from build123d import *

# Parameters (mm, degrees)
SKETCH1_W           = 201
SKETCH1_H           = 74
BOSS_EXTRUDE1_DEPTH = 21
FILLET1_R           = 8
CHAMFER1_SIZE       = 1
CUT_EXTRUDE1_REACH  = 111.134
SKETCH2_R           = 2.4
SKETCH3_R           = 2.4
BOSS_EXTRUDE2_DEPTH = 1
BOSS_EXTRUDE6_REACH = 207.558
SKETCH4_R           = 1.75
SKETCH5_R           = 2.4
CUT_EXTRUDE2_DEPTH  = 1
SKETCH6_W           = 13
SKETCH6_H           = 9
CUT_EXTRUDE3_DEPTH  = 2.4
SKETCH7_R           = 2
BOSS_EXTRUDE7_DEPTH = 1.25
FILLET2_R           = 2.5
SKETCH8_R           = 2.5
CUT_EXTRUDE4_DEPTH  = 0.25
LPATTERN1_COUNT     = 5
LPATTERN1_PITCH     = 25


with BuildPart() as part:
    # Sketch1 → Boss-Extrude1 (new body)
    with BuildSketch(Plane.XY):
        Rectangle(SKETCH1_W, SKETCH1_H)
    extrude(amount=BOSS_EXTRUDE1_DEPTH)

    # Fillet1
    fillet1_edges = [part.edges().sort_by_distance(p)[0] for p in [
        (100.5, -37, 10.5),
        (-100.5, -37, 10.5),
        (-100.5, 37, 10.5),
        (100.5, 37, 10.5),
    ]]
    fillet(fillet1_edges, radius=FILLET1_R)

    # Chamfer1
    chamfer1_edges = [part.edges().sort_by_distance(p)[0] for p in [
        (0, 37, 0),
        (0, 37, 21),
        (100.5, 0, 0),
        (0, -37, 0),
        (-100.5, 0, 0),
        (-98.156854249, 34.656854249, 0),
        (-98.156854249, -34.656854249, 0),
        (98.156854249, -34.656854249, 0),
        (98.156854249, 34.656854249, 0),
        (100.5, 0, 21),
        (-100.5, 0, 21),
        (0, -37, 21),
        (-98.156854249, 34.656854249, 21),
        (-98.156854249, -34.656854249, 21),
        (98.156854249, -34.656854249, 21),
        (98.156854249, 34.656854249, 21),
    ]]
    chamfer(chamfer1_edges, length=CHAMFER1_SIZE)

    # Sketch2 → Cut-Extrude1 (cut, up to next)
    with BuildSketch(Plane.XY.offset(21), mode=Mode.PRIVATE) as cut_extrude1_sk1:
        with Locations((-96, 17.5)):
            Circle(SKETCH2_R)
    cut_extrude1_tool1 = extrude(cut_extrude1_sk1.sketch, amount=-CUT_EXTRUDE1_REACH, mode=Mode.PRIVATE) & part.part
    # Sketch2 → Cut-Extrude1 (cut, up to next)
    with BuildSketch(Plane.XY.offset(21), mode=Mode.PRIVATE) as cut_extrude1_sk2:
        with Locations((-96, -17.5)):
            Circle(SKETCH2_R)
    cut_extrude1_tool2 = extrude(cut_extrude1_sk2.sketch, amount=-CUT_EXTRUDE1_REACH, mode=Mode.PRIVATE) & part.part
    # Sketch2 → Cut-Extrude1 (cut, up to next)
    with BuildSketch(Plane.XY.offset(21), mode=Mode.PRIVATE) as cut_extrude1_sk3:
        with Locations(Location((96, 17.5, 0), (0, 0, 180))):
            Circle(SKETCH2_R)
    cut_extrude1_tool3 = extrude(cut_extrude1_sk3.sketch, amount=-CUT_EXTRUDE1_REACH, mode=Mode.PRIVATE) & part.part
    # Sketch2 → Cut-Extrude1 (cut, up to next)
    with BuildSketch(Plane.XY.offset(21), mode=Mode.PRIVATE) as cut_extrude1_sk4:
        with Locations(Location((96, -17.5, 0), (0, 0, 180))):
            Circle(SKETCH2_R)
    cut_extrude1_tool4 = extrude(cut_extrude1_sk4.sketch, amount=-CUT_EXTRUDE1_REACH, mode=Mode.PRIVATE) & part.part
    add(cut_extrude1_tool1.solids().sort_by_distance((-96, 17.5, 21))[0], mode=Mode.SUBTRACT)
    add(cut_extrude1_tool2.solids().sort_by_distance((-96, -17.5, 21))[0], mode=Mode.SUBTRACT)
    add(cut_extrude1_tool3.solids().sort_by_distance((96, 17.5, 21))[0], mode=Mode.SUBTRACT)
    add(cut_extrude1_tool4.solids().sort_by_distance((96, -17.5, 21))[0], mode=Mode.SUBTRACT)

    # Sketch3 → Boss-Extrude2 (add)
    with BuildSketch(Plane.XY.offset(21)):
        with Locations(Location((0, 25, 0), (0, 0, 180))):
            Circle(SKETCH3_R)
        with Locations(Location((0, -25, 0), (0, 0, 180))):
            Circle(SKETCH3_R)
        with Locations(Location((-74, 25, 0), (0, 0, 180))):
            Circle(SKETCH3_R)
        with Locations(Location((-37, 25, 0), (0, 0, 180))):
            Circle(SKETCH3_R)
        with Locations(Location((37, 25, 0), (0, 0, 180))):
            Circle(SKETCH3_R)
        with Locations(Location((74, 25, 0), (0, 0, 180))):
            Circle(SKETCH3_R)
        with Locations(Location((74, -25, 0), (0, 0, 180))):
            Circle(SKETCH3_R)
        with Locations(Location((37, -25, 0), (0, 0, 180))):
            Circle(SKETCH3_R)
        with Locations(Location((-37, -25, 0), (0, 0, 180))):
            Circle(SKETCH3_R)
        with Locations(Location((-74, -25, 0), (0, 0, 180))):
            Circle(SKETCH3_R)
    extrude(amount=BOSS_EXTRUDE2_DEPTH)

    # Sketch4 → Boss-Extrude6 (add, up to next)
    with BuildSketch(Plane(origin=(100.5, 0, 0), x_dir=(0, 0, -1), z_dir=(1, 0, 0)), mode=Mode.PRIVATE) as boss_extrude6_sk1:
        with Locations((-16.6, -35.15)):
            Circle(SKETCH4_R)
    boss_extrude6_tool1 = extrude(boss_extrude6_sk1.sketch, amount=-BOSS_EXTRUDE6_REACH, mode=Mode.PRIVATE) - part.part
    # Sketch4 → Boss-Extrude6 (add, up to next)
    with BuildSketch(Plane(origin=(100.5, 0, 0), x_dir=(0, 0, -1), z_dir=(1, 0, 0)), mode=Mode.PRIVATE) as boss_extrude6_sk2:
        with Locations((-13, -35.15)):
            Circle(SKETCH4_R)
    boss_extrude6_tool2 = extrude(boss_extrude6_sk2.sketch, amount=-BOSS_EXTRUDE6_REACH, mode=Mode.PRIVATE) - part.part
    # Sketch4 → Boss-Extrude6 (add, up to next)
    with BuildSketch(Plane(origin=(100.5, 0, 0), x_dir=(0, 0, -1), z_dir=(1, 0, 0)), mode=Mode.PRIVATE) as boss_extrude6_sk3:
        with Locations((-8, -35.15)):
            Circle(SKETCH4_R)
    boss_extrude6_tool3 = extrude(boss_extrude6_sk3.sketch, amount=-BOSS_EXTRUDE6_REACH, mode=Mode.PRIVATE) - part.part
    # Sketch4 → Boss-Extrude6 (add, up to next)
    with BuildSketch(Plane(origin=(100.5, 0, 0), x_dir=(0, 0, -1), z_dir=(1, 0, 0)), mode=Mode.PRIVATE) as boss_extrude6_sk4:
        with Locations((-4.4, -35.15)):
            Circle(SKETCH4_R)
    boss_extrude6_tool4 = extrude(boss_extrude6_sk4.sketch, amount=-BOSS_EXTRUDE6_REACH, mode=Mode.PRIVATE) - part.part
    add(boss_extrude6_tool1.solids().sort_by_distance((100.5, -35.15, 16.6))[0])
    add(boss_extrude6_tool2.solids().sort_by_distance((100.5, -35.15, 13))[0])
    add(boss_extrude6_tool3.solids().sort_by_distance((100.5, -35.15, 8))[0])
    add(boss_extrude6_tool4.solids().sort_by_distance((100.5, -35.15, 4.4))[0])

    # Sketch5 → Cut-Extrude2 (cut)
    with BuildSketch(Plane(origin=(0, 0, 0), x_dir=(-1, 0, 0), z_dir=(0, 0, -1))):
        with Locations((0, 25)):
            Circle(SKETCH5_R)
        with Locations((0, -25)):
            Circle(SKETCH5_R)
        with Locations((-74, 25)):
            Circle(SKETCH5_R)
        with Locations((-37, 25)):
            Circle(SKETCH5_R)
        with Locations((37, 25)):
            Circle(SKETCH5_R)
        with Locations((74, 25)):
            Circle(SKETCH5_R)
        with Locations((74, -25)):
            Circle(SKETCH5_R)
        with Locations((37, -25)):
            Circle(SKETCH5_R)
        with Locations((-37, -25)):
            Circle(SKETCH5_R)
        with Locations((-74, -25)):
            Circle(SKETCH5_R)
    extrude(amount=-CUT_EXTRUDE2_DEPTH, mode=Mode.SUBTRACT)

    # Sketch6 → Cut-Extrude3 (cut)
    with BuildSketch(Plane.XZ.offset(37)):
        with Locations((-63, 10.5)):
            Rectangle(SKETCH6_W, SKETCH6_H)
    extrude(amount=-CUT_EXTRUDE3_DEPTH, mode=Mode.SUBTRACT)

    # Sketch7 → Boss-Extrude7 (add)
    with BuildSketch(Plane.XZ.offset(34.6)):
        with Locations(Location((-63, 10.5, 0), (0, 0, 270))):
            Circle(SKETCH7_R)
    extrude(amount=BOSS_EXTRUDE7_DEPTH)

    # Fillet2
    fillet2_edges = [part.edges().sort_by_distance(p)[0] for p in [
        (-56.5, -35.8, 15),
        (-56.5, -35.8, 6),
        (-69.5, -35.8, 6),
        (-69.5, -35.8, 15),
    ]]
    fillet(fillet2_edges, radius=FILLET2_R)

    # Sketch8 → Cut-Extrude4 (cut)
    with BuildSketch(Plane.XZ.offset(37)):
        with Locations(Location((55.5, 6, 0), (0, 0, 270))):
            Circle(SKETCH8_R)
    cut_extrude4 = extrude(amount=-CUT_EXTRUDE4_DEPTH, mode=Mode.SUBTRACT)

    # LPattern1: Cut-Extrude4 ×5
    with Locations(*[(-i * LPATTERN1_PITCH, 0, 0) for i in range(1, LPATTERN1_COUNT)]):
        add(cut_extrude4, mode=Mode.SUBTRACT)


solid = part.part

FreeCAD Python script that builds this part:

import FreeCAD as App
import Part
import Sketcher
Q = App.Units.Quantity


def edges_at(feature, points):
    """Names of the edges that pass closest to the given points."""
    edges = feature.Shape.Edges
    near = lambda p: min(range(len(edges)), key=lambda i: edges[i].distToShape(Part.Vertex(*p))[0])
    return sorted({f"Edge{near(p) + 1}" for p in points})


def add_polygon(sketch, points):
    """Adds a closed chain of lines whose ends are joined by coincident constraints."""
    first, n = sketch.GeometryCount, len(points)
    for a, b in zip(points, points[1:] + points[:1]):
        sketch.addGeometry(Part.LineSegment(App.Vector(*a, 0), App.Vector(*b, 0)), False)
    for i in range(n):
        sketch.addConstraint(Sketcher.Constraint("Coincident", first + i, 2, first + (i + 1) % n, 1))

doc = App.newDocument("Part")
body = doc.addObject("PartDesign::Body", "Body")

sketch1 = body.newObject("Sketcher::SketchObject", "Sketch")
sketch1.AttachmentSupport = (doc.getObject("XY_Plane"), [""])
sketch1.MapMode = "FlatFace"
add_polygon(sketch1, [(-100, 37), (-100, -37), (100, -37), (100, 37)])
sketch1.addConstraint([
    Sketcher.Constraint("Vertical", 0),
    Sketcher.Constraint("Horizontal", 1),
    Sketcher.Constraint("Vertical", 2),
    Sketcher.Constraint("Horizontal", 3),
    Sketcher.Constraint("Symmetric", 0, 2, 2, 2, -1, 1),
    Sketcher.Constraint("DistanceX", 1, 1, 1, 2, Q("201 mm")),
    Sketcher.Constraint("DistanceY", 0, 2, 0, 1, Q("74 mm")),
])
pad1 = body.newObject("PartDesign::Pad", "Pad")
pad1.Profile = sketch1
pad1.Length = 21
doc.recompute()

fillet = body.newObject("PartDesign::Fillet", "Fillet")
fillet.Base = (pad1, edges_at(pad1, [
    (100.5, -37, 10.5),
    (-100.5, -37, 10.5),
    (-100.5, 37, 10.5),
    (100.5, 37, 10.5),
]))
fillet.Radius = 8
doc.recompute()

chamfer = body.newObject("PartDesign::Chamfer", "Chamfer")
chamfer.Base = (fillet, edges_at(fillet, [
    (0, 37, 0),
    (0, 37, 21),
    (100.5, 0, 0),
    (0, -37, 0),
    (-100.5, 0, 0),
    (-98.157, 34.657, 0),
    (-98.157, -34.657, 0),
    (98.157, -34.657, 0),
    (98.157, 34.657, 0),
    (100.5, 0, 21),
    (-100.5, 0, 21),
    (0, -37, 21),
    (-98.157, 34.657, 21),
    (-98.157, -34.657, 21),
    (98.157, -34.657, 21),
    (98.157, 34.657, 21),
]))
chamfer.Size = 1

sketch2 = body.newObject("Sketcher::SketchObject", "Sketch001")
sketch2.AttachmentSupport = (doc.getObject("XY_Plane"), [""])
sketch2.MapMode = "FlatFace"
sketch2.AttachmentOffset = App.Placement(App.Vector(0, 0, 21), App.Rotation())
sketch2.addGeometry(Part.Circle(App.Vector(-96, 17.5, 0), App.Vector(0, 0, 1), 2.4), False)
sketch2.addConstraint([
    Sketcher.Constraint("Diameter", 0, Q("4.8 mm")),
    Sketcher.Constraint("DistanceX", 0, 3, -1, 1, Q("96 mm")),
    Sketcher.Constraint("DistanceY", -1, 1, 0, 3, Q("17.5 mm")),
])
pocket1 = body.newObject("PartDesign::Pocket", "Pocket")
pocket1.Profile = sketch2
pocket1.Type = "UpToFirst"

sketch3 = body.newObject("Sketcher::SketchObject", "Sketch002")
sketch3.AttachmentSupport = (doc.getObject("XY_Plane"), [""])
sketch3.MapMode = "FlatFace"
sketch3.AttachmentOffset = App.Placement(App.Vector(0, 0, 21), App.Rotation())
sketch3.addGeometry(Part.Circle(App.Vector(-96, -17.5, 0), App.Vector(0, 0, 1), 2.4), False)
sketch3.addConstraint([
    Sketcher.Constraint("Diameter", 0, Q("4.8 mm")),
    Sketcher.Constraint("DistanceX", 0, 3, -1, 1, Q("96 mm")),
    Sketcher.Constraint("DistanceY", 0, 3, -1, 1, Q("17.5 mm")),
])
pocket2 = body.newObject("PartDesign::Pocket", "Pocket001")
pocket2.Profile = sketch3
pocket2.Type = "UpToFirst"

sketch4 = body.newObject("Sketcher::SketchObject", "Sketch003")
sketch4.AttachmentSupport = (doc.getObject("XY_Plane"), [""])
sketch4.MapMode = "FlatFace"
sketch4.AttachmentOffset = App.Placement(App.Vector(0, 0, 21), App.Rotation())
sketch4.addGeometry(Part.Circle(App.Vector(96, 17.5, 0), App.Vector(0, 0, 1), 2.4), False)
sketch4.addConstraint([
    Sketcher.Constraint("Diameter", 0, Q("4.8 mm")),
    Sketcher.Constraint("DistanceX", -1, 1, 0, 3, Q("96 mm")),
    Sketcher.Constraint("DistanceY", -1, 1, 0, 3, Q("17.5 mm")),
])
pocket3 = body.newObject("PartDesign::Pocket", "Pocket002")
pocket3.Profile = sketch4
pocket3.Type = "UpToFirst"

sketch5 = body.newObject("Sketcher::SketchObject", "Sketch004")
sketch5.AttachmentSupport = (doc.getObject("XY_Plane"), [""])
sketch5.MapMode = "FlatFace"
sketch5.AttachmentOffset = App.Placement(App.Vector(0, 0, 21), App.Rotation())
sketch5.addGeometry(Part.Circle(App.Vector(96, -17.5, 0), App.Vector(0, 0, 1), 2.4), False)
sketch5.addConstraint([
    Sketcher.Constraint("Diameter", 0, Q("4.8 mm")),
    Sketcher.Constraint("DistanceX", -1, 1, 0, 3, Q("96 mm")),
    Sketcher.Constraint("DistanceY", 0, 3, -1, 1, Q("17.5 mm")),
])
pocket4 = body.newObject("PartDesign::Pocket", "Pocket003")
pocket4.Profile = sketch5
pocket4.Type = "UpToFirst"

sketch6 = body.newObject("Sketcher::SketchObject", "Sketch005")
sketch6.AttachmentSupport = (doc.getObject("XY_Plane"), [""])
sketch6.MapMode = "FlatFace"
sketch6.AttachmentOffset = App.Placement(App.Vector(0, 0, 21), App.Rotation())
sketch6.addGeometry([
    Part.Circle(App.Vector(0, 25, 0), App.Vector(0, 0, 1), 2.4),
    Part.Circle(App.Vector(0, -25, 0), App.Vector(0, 0, 1), 2.4),
    Part.Circle(App.Vector(-74, 25, 0), App.Vector(0, 0, 1), 2.4),
    Part.Circle(App.Vector(-37, 25, 0), App.Vector(0, 0, 1), 2.4),
    Part.Circle(App.Vector(37, 25, 0), App.Vector(0, 0, 1), 2.4),
    Part.Circle(App.Vector(74, 25, 0), App.Vector(0, 0, 1), 2.4),
    Part.Circle(App.Vector(74, -25, 0), App.Vector(0, 0, 1), 2.4),
    Part.Circle(App.Vector(37, -25, 0), App.Vector(0, 0, 1), 2.4),
    Part.Circle(App.Vector(-37, -25, 0), App.Vector(0, 0, 1), 2.4),
    Part.Circle(App.Vector(-74, -25, 0), App.Vector(0, 0, 1), 2.4),
], False)
sketch6.addConstraint([
    Sketcher.Constraint("Equal", 0, 1),
    Sketcher.Constraint("Equal", 1, 2),
    Sketcher.Constraint("Equal", 2, 3),
    Sketcher.Constraint("Equal", 3, 4),
    Sketcher.Constraint("Equal", 4, 5),
    Sketcher.Constraint("Equal", 5, 6),
    Sketcher.Constraint("Equal", 6, 7),
    Sketcher.Constraint("Equal", 7, 8),
    Sketcher.Constraint("Equal", 8, 9),
    Sketcher.Constraint("Symmetric", 0, 3, 1, 3, -1, 1),
    Sketcher.Constraint("Symmetric", 2, 3, 6, 3, -1, 1),
    Sketcher.Constraint("Symmetric", 3, 3, 7, 3, -1, 1),
    Sketcher.Constraint("Symmetric", 4, 3, 8, 3, -1, 1),
    Sketcher.Constraint("Symmetric", 5, 3, 9, 3, -1, 1),
    Sketcher.Constraint("Symmetric", 3, 3, 4, 3, -2),
    Sketcher.Constraint("Symmetric", 2, 3, 5, 3, -2),
    Sketcher.Constraint("PointOnObject", 0, 3, -2),
    Sketcher.Constraint("Horizontal", 0, 3, 2, 3),
    Sketcher.Constraint("Horizontal", 2, 3, 3, 3),
    Sketcher.Constraint("Diameter", 0, Q("4.8 mm")),
    Sketcher.Constraint("DistanceY", -1, 1, 0, 3, Q("25 mm")),
    Sketcher.Constraint("DistanceX", 2, 3, -1, 1, Q("74 mm")),
    Sketcher.Constraint("DistanceX", 3, 3, -1, 1, Q("37 mm")),
])
pad2 = body.newObject("PartDesign::Pad", "Pad001")
pad2.Profile = sketch6
pad2.Length = 1

sketch7 = body.newObject("Sketcher::SketchObject", "Sketch006")
sketch7.AttachmentSupport = (doc.getObject("YZ_Plane"), [""])
sketch7.MapMode = "FlatFace"
sketch7.AttachmentOffset = App.Placement(App.Vector(0, 0, 100.5), App.Rotation())
sketch7.addGeometry(Part.Circle(App.Vector(-35.1, 16.6, 0), App.Vector(0, 0, 1), 1.8), False)
sketch7.addConstraint([
    Sketcher.Constraint("Diameter", 0, Q("3.5 mm")),
    Sketcher.Constraint("DistanceY", -1, 1, 0, 3, Q("16.6 mm")),
    Sketcher.Constraint("DistanceX", 0, 3, -1, 1, Q("35.15 mm")),
])
pad3 = body.newObject("PartDesign::Pad", "Pad002")
pad3.Profile = sketch7
pad3.Type = "UpToFirst"
pad3.Reversed = True

sketch8 = body.newObject("Sketcher::SketchObject", "Sketch007")
sketch8.AttachmentSupport = (doc.getObject("YZ_Plane"), [""])
sketch8.MapMode = "FlatFace"
sketch8.AttachmentOffset = App.Placement(App.Vector(0, 0, 100.5), App.Rotation())
sketch8.addGeometry(Part.Circle(App.Vector(-35.1, 13, 0), App.Vector(0, 0, 1), 1.8), False)
sketch8.addConstraint([
    Sketcher.Constraint("Diameter", 0, Q("3.5 mm")),
    Sketcher.Constraint("DistanceY", -1, 1, 0, 3, Q("13 mm")),
    Sketcher.Constraint("DistanceX", 0, 3, -1, 1, Q("35.15 mm")),
])
pad4 = body.newObject("PartDesign::Pad", "Pad003")
pad4.Profile = sketch8
pad4.Type = "UpToFirst"
pad4.Reversed = True

sketch9 = body.newObject("Sketcher::SketchObject", "Sketch008")
sketch9.AttachmentSupport = (doc.getObject("YZ_Plane"), [""])
sketch9.MapMode = "FlatFace"
sketch9.AttachmentOffset = App.Placement(App.Vector(0, 0, 100.5), App.Rotation())
sketch9.addGeometry(Part.Circle(App.Vector(-35.1, 8, 0), App.Vector(0, 0, 1), 1.8), False)
sketch9.addConstraint([
    Sketcher.Constraint("Diameter", 0, Q("3.5 mm")),
    Sketcher.Constraint("DistanceY", -1, 1, 0, 3, Q("8 mm")),
    Sketcher.Constraint("DistanceX", 0, 3, -1, 1, Q("35.15 mm")),
])
pad5 = body.newObject("PartDesign::Pad", "Pad004")
pad5.Profile = sketch9
pad5.Type = "UpToFirst"
pad5.Reversed = True

sketch10 = body.newObject("Sketcher::SketchObject", "Sketch009")
sketch10.AttachmentSupport = (doc.getObject("YZ_Plane"), [""])
sketch10.MapMode = "FlatFace"
sketch10.AttachmentOffset = App.Placement(App.Vector(0, 0, 100.5), App.Rotation())
sketch10.addGeometry(Part.Circle(App.Vector(-35.1, 4.4, 0), App.Vector(0, 0, 1), 1.8), False)
sketch10.addConstraint([
    Sketcher.Constraint("Diameter", 0, Q("3.5 mm")),
    Sketcher.Constraint("DistanceY", -1, 1, 0, 3, Q("4.4 mm")),
    Sketcher.Constraint("DistanceX", 0, 3, -1, 1, Q("35.15 mm")),
])
pad6 = body.newObject("PartDesign::Pad", "Pad005")
pad6.Profile = sketch10
pad6.Type = "UpToFirst"
pad6.Reversed = True

sketch11 = body.newObject("Sketcher::SketchObject", "Sketch010")
sketch11.AttachmentSupport = (doc.getObject("XY_Plane"), [""])
sketch11.MapMode = "FlatFace"
sketch11.addGeometry([
    Part.Circle(App.Vector(0, 25, 0), App.Vector(0, 0, 1), 2.4),
    Part.Circle(App.Vector(0, -25, 0), App.Vector(0, 0, 1), 2.4),
    Part.Circle(App.Vector(74, 25, 0), App.Vector(0, 0, 1), 2.4),
    Part.Circle(App.Vector(37, 25, 0), App.Vector(0, 0, 1), 2.4),
    Part.Circle(App.Vector(-37, 25, 0), App.Vector(0, 0, 1), 2.4),
    Part.Circle(App.Vector(-74, 25, 0), App.Vector(0, 0, 1), 2.4),
    Part.Circle(App.Vector(-74, -25, 0), App.Vector(0, 0, 1), 2.4),
    Part.Circle(App.Vector(-37, -25, 0), App.Vector(0, 0, 1), 2.4),
    Part.Circle(App.Vector(37, -25, 0), App.Vector(0, 0, 1), 2.4),
    Part.Circle(App.Vector(74, -25, 0), App.Vector(0, 0, 1), 2.4),
], False)
sketch11.addConstraint([
    Sketcher.Constraint("Equal", 0, 1),
    Sketcher.Constraint("Equal", 1, 2),
    Sketcher.Constraint("Equal", 2, 3),
    Sketcher.Constraint("Equal", 3, 4),
    Sketcher.Constraint("Equal", 4, 5),
    Sketcher.Constraint("Equal", 5, 6),
    Sketcher.Constraint("Equal", 6, 7),
    Sketcher.Constraint("Equal", 7, 8),
    Sketcher.Constraint("Equal", 8, 9),
    Sketcher.Constraint("Symmetric", 0, 3, 1, 3, -1, 1),
    Sketcher.Constraint("Symmetric", 2, 3, 6, 3, -1, 1),
    Sketcher.Constraint("Symmetric", 3, 3, 7, 3, -1, 1),
    Sketcher.Constraint("Symmetric", 4, 3, 8, 3, -1, 1),
    Sketcher.Constraint("Symmetric", 5, 3, 9, 3, -1, 1),
    Sketcher.Constraint("Symmetric", 3, 3, 4, 3, -2),
    Sketcher.Constraint("Symmetric", 2, 3, 5, 3, -2),
    Sketcher.Constraint("PointOnObject", 0, 3, -2),
    Sketcher.Constraint("Horizontal", 0, 3, 2, 3),
    Sketcher.Constraint("Horizontal", 2, 3, 3, 3),
    Sketcher.Constraint("Diameter", 0, Q("4.8 mm")),
    Sketcher.Constraint("DistanceY", -1, 1, 0, 3, Q("25 mm")),
    Sketcher.Constraint("DistanceX", -1, 1, 2, 3, Q("74 mm")),
    Sketcher.Constraint("DistanceX", -1, 1, 3, 3, Q("37 mm")),
])
pocket5 = body.newObject("PartDesign::Pocket", "Pocket004")
pocket5.Profile = sketch11
pocket5.Length = 1
pocket5.Reversed = True

sketch12 = body.newObject("Sketcher::SketchObject", "Sketch011")
sketch12.AttachmentSupport = (doc.getObject("XZ_Plane"), [""])
sketch12.MapMode = "FlatFace"
sketch12.AttachmentOffset = App.Placement(App.Vector(0, 0, 37), App.Rotation())
add_polygon(sketch12, [(-70, 15), (-70, 6), (-56, 6), (-56, 15)])
sketch12.addConstraint([
    Sketcher.Constraint("Vertical", 0),
    Sketcher.Constraint("Horizontal", 1),
    Sketcher.Constraint("Vertical", 2),
    Sketcher.Constraint("Horizontal", 3),
    Sketcher.Constraint("DistanceX", 1, 1, 1, 2, Q("13 mm")),
    Sketcher.Constraint("DistanceY", 0, 2, 0, 1, Q("9 mm")),
    Sketcher.Constraint("DistanceY", -1, 1, 0, 2, Q("6 mm")),
    Sketcher.Constraint("DistanceX", 0, 2, -1, 1, Q("69.5 mm")),
])
pocket6 = body.newObject("PartDesign::Pocket", "Pocket005")
pocket6.Profile = sketch12
pocket6.Length = 2.4

sketch13 = body.newObject("Sketcher::SketchObject", "Sketch012")
sketch13.AttachmentSupport = (doc.getObject("XZ_Plane"), [""])
sketch13.MapMode = "FlatFace"
sketch13.AttachmentOffset = App.Placement(App.Vector(0, 0, 34.6), App.Rotation())
sketch13.addGeometry(Part.Circle(App.Vector(-63, 10.5, 0), App.Vector(0, 0, 1), 2), False)
sketch13.addConstraint([
    Sketcher.Constraint("Diameter", 0, Q("4 mm")),
    Sketcher.Constraint("DistanceX", 0, 3, -1, 1, Q("63 mm")),
    Sketcher.Constraint("DistanceY", -1, 1, 0, 3, Q("10.5 mm")),
])
pad7 = body.newObject("PartDesign::Pad", "Pad006")
pad7.Profile = sketch13
pad7.Length = 1.25
doc.recompute()

fillet2 = body.newObject("PartDesign::Fillet", "Fillet001")
fillet2.Base = (pad7, edges_at(pad7, [
    (-56.5, -35.8, 15),
    (-56.5, -35.8, 6),
    (-69.5, -35.8, 6),
    (-69.5, -35.8, 15),
]))
fillet2.Radius = 2.5

sketch14 = body.newObject("Sketcher::SketchObject", "Sketch013")
sketch14.AttachmentSupport = (doc.getObject("XZ_Plane"), [""])
sketch14.MapMode = "FlatFace"
sketch14.AttachmentOffset = App.Placement(App.Vector(0, 0, 37), App.Rotation())
sketch14.addGeometry(Part.Circle(App.Vector(55.5, 6, 0), App.Vector(0, 0, 1), 2.5), False)
sketch14.addConstraint([
    Sketcher.Constraint("Diameter", 0, Q("5 mm")),
    Sketcher.Constraint("DistanceY", -1, 1, 0, 3, Q("6 mm")),
    Sketcher.Constraint("DistanceX", -1, 1, 0, 3, Q("55.5 mm")),
])
pocket7 = body.newObject("PartDesign::Pocket", "Pocket006")
pocket7.Profile = sketch14
pocket7.Length = 0.25
doc.recompute()

linearpattern = body.newObject("PartDesign::LinearPattern", "LinearPattern")
linearpattern.Originals = [pocket7]
linearpattern.Direction = (doc.getObject("X_Axis"), [""])
linearpattern.Mode = "offset"
linearpattern.Offset = 25
linearpattern.Occurrences = 5
linearpattern.Reversed = True
body.Tip = linearpattern

doc.recompute()
